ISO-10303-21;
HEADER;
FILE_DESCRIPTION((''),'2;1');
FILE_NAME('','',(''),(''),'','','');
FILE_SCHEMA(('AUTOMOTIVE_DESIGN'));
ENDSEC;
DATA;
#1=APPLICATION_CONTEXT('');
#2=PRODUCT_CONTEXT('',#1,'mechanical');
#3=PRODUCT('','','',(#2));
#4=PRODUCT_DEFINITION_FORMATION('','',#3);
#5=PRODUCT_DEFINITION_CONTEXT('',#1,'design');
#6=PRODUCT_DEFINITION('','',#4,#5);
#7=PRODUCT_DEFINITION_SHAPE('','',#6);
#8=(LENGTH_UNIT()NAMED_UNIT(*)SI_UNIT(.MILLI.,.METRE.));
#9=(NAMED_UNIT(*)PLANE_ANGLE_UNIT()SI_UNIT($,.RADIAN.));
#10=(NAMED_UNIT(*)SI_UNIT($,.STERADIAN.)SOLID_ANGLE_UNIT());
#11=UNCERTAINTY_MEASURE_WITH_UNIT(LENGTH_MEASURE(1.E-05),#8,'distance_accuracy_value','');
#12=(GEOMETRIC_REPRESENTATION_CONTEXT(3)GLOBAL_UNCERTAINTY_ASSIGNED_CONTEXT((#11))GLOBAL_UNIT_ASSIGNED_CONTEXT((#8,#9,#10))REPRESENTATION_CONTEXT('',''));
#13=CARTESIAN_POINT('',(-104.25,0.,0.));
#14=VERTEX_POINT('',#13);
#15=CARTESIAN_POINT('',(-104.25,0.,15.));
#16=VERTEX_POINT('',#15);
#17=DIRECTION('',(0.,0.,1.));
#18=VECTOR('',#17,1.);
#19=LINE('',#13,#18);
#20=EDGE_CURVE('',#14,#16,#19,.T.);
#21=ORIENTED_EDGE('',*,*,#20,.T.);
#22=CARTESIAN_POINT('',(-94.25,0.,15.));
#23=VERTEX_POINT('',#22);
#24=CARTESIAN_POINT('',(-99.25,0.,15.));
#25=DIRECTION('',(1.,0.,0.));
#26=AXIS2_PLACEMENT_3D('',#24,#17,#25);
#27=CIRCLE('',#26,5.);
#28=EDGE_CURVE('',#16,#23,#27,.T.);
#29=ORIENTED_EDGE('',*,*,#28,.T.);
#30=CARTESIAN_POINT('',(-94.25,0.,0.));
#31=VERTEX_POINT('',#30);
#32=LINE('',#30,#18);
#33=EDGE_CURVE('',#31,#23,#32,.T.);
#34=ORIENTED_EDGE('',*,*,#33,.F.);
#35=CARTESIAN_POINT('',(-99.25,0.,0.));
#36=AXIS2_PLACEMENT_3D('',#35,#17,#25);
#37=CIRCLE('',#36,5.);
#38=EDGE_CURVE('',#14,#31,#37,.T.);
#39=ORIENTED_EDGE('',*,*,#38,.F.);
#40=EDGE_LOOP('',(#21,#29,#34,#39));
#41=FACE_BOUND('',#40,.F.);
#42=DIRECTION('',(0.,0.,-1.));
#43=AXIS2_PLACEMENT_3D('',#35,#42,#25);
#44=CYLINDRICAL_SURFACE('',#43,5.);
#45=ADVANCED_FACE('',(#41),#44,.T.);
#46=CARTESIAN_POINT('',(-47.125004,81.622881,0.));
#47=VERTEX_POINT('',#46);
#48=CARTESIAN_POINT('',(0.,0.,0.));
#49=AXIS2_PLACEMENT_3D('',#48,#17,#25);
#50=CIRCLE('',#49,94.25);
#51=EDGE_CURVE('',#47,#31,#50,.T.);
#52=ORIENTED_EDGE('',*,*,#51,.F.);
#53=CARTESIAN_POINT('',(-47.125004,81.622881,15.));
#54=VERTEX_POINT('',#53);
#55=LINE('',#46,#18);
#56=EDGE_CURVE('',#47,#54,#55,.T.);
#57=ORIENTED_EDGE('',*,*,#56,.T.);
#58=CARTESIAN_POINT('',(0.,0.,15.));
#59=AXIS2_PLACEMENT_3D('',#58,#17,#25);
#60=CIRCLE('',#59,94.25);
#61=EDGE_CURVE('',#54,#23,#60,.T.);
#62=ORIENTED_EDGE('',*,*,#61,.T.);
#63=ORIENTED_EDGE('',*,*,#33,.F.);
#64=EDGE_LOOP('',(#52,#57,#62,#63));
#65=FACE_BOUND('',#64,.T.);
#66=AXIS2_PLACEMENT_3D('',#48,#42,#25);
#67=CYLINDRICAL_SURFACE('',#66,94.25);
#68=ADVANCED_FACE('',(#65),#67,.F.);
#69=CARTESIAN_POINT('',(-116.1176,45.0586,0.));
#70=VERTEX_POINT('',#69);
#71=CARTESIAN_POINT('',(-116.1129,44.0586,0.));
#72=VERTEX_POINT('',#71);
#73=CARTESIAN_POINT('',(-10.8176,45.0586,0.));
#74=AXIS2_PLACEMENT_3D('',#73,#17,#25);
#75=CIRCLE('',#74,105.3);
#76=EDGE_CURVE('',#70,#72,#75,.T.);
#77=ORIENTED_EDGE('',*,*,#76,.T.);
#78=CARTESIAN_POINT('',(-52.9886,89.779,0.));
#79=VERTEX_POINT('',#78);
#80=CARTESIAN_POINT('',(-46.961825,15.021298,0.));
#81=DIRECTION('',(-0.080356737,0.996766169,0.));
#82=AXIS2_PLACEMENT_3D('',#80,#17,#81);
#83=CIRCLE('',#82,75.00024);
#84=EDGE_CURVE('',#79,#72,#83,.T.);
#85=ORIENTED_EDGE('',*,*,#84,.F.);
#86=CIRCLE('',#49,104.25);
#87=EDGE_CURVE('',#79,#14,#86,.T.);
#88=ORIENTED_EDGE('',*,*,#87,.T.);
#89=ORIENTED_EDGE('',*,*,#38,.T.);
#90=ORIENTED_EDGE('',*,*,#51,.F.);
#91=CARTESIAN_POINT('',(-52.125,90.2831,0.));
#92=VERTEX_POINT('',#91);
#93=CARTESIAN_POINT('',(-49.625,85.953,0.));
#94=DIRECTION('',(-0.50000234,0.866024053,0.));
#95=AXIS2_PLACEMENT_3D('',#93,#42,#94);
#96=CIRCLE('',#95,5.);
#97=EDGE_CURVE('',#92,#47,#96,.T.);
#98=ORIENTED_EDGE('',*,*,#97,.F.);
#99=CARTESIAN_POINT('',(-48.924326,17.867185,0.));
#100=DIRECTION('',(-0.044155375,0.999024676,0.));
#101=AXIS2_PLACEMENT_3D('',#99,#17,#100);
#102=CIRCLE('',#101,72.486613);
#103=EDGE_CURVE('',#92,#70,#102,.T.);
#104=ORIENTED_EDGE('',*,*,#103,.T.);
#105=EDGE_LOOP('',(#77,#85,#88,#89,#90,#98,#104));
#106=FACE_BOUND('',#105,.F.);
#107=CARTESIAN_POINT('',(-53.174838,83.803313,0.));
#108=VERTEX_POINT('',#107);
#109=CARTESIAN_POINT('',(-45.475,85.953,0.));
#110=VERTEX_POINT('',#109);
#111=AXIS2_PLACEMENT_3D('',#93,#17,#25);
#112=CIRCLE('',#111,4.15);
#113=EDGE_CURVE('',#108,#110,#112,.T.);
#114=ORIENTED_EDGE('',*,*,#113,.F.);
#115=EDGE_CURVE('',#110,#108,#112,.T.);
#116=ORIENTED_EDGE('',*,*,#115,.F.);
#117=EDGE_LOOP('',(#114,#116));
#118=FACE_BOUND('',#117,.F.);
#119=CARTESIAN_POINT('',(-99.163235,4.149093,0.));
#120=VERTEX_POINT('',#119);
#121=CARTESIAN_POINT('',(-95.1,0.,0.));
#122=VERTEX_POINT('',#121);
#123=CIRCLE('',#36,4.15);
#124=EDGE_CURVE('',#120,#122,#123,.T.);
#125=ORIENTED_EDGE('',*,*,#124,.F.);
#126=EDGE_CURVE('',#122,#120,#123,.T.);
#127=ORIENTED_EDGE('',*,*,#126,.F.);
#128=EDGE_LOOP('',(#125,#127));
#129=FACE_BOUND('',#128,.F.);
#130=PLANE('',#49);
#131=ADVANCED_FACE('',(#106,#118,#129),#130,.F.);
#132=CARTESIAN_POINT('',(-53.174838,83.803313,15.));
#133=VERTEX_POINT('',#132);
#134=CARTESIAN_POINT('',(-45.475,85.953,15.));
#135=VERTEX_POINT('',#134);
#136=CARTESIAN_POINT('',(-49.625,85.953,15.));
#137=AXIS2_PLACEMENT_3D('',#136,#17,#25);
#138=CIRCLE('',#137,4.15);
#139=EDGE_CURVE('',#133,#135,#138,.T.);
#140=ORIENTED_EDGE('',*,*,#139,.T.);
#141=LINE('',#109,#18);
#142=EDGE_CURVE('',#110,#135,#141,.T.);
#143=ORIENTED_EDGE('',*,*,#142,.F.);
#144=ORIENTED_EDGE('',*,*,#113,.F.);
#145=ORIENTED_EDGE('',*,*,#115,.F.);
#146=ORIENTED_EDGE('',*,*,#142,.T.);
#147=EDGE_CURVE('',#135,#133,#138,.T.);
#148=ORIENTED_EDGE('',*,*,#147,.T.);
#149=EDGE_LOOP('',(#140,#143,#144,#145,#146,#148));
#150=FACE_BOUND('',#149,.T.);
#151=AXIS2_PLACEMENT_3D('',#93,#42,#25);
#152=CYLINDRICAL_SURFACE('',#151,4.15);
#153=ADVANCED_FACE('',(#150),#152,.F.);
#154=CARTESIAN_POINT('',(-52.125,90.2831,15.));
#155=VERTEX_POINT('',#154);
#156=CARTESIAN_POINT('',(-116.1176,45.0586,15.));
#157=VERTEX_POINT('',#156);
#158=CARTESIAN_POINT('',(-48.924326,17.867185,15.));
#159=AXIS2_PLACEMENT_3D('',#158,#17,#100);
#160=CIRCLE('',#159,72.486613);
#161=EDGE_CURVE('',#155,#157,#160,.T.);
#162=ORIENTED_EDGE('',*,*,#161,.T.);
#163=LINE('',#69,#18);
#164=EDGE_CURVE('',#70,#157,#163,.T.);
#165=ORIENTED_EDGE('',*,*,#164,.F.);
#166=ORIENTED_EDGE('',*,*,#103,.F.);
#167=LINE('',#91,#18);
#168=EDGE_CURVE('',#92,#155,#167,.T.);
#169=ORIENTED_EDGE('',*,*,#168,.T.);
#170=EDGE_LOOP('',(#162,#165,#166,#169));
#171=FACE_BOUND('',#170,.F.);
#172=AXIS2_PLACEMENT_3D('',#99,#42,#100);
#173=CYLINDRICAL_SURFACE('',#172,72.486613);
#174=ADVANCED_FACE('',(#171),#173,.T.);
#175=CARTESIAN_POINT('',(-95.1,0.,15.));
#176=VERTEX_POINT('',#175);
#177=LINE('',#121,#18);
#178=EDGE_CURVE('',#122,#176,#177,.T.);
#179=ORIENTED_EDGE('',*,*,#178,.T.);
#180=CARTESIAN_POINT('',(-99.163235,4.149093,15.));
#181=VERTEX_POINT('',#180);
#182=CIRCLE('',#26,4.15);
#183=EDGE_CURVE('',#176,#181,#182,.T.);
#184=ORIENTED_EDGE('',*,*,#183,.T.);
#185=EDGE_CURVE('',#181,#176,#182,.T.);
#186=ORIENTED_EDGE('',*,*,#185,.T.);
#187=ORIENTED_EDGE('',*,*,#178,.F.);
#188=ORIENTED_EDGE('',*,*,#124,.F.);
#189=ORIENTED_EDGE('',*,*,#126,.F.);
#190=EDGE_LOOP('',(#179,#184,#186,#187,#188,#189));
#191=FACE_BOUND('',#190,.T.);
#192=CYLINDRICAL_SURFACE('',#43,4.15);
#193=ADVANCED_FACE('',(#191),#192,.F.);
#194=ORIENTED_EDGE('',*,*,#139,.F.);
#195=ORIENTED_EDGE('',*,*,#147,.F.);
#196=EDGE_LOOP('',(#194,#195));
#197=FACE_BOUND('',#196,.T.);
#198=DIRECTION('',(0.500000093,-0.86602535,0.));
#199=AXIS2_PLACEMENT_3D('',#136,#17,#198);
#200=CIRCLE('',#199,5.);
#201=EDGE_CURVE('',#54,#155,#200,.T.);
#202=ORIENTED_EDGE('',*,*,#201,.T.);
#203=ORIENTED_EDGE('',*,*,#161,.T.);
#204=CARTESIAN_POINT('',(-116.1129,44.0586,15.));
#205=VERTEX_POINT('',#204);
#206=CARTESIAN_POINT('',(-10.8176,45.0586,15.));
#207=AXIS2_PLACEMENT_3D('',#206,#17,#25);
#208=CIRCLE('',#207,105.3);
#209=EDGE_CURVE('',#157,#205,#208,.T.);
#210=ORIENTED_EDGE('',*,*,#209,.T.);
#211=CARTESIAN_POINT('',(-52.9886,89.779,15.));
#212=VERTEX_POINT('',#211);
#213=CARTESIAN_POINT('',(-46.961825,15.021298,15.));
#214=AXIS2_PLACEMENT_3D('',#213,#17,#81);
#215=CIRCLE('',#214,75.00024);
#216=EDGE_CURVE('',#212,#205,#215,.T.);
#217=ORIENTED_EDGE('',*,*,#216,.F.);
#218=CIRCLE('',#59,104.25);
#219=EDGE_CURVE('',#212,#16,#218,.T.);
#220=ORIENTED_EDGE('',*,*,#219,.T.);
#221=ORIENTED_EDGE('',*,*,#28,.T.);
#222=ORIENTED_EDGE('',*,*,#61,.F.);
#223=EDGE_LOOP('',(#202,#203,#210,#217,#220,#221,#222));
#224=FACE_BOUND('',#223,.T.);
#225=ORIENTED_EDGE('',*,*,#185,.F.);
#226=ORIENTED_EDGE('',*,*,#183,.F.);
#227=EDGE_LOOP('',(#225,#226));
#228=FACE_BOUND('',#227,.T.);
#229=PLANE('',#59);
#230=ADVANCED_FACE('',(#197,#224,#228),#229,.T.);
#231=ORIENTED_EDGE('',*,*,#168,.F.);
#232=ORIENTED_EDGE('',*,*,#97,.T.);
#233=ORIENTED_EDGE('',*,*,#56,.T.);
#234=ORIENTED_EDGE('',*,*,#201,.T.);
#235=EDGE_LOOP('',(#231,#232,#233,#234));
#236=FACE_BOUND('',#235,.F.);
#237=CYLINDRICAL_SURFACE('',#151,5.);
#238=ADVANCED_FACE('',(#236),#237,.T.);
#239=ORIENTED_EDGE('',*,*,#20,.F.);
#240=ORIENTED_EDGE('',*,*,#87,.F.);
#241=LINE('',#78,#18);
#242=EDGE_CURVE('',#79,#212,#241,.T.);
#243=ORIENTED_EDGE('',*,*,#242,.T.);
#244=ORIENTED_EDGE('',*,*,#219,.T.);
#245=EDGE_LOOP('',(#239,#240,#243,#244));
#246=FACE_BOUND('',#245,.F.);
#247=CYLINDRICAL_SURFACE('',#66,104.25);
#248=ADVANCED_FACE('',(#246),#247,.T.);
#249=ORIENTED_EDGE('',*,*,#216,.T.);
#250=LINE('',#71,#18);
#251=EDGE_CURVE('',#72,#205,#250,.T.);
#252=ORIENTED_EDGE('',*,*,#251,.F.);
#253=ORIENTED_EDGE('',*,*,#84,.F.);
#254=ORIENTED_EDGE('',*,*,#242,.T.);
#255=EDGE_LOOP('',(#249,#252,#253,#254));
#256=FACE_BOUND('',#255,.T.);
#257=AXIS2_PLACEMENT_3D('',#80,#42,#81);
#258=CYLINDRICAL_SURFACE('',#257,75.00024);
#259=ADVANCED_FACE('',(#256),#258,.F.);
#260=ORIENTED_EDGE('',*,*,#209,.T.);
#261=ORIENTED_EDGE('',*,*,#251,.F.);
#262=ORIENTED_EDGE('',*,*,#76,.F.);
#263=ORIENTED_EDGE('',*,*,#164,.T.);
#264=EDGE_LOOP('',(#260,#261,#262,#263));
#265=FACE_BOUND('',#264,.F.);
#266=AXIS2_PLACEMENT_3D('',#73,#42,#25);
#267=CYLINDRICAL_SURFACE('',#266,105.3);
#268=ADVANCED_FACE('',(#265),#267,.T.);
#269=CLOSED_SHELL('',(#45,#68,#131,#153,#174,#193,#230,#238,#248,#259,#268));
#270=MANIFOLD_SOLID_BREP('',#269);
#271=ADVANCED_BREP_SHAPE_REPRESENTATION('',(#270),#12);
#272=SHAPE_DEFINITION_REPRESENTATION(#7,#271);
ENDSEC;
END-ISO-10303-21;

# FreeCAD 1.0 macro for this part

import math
import FreeCAD as App
import Part
import Sketcher

V = App.Vector
Q = App.Units.Quantity

doc = App.newDocument("Part")
body = doc.addObject("PartDesign::Body", "Body")

# Sketch on XY plane
sketch1 = body.newObject("Sketcher::SketchObject", "Sketch")
sketch1.AttachmentSupport = (doc.getObject("XY_Plane"), [""])
sketch1.MapMode = "FlatFace"
sketch1.addGeometry(Part.ArcOfCircle(Part.Circle(V(-99.2, 0, 0), V(0, 0, 1), 5), math.radians(180), math.radians(360)), False)
sketch1.addGeometry(Part.ArcOfCircle(Part.Circle(V(0, 0, 0), V(0, 0, 1), 94.2), math.radians(120), math.radians(180)), False)
sketch1.addGeometry(Part.ArcOfCircle(Part.Circle(V(-49.6, 86, 0), V(0, 0, 1), 5), math.radians(-60), math.radians(120)), False)
sketch1.addGeometry(Part.ArcOfCircle(Part.Circle(V(-48.9, 17.9, 0), V(0, 0, 1), 72.5), math.radians(93), math.radians(158)), False)
sketch1.addGeometry(Part.ArcOfCircle(Part.Circle(V(-10.8, 45.1, 0), V(0, 0, 1), 105.3), math.radians(180), math.radians(180.54)), False)
sketch1.addGeometry(Part.ArcOfCircle(Part.Circle(V(-47, 15, 0), V(0, 0, 1), 75), math.radians(95), math.radians(157)), False)
sketch1.addGeometry(Part.ArcOfCircle(Part.Circle(V(0, 0, 0), V(0, 0, 1), 104.2), math.radians(121), math.radians(180)), False)
sketch1.addGeometry(Part.Circle(V(-99.2, 0, 0), V(0, 0, 1), 4.2), False)
sketch1.addGeometry(Part.Circle(V(-49.6, 86, 0), V(0, 0, 1), 4.2), False)
sketch1.addConstraint(Sketcher.Constraint("Tangent", 0, 2, 1, 2))
sketch1.addConstraint(Sketcher.Constraint("Tangent", 1, 1, 2, 1))
sketch1.addConstraint(Sketcher.Constraint("Coincident", 2, 2, 3, 1))
sketch1.addConstraint(Sketcher.Constraint("Coincident", 3, 2, 4, 1))
sketch1.addConstraint(Sketcher.Constraint("Coincident", 4, 2, 5, 2))
sketch1.addConstraint(Sketcher.Constraint("Coincident", 5, 1, 6, 1))
sketch1.addConstraint(Sketcher.Constraint("Tangent", 6, 2, 0, 1))
sketch1.addConstraint(Sketcher.Constraint("Coincident", 1, 3, -1, 1))
sketch1.addConstraint(Sketcher.Constraint("Coincident", 6, 3, -1, 1))
sketch1.addConstraint(Sketcher.Constraint("Coincident", 7, 3, 0, 3))
sketch1.addConstraint(Sketcher.Constraint("Coincident", 8, 3, 2, 3))
sketch1.addConstraint(Sketcher.Constraint("Equal", 0, 2))
sketch1.addConstraint(Sketcher.Constraint("Equal", 7, 8))
sketch1.addConstraint(Sketcher.Constraint("PointOnObject", 0, 3, -1))
sketch1.addConstraint(Sketcher.Constraint("Horizontal", 4, 3, 3, 2))
sketch1.addConstraint(Sketcher.Constraint("Radius", 0, Q("5 mm")))
sketch1.addConstraint(Sketcher.Constraint("Radius", 5, Q("75 mm")))
sketch1.addConstraint(Sketcher.Constraint("Diameter", 7, Q("8.3 mm")))
sketch1.addConstraint(Sketcher.Constraint("Radius", 4, Q("105.3 mm")))
sketch1.addConstraint(Sketcher.Constraint("DistanceY", 4, 2, 3, 2, Q("1 mm")))
sketch1.addConstraint(Sketcher.Constraint("Radius", 1, Q("94.25 mm")))
sketch1.addConstraint(Sketcher.Constraint("DistanceX", 2, 2, 1, 1, Q("5 mm")))
sketch1.addConstraint(Sketcher.Constraint("Radius", 3, Q("72.4864 mm")))
sketch1.addConstraint(Sketcher.Constraint("DistanceX", 2, 2, 2, 3, Q("2.5 mm")))
sketch1.addConstraint(Sketcher.Constraint("DistanceX", 5, 3, -1, 1, Q("46.962 mm")))
sketch1.addConstraint(Sketcher.Constraint("DistanceY", -1, 1, 5, 1, Q("89.779 mm")))
sketch1.addConstraint(Sketcher.Constraint("DistanceY", 5, 3, 4, 3, Q("30.037 mm")))
pad1 = body.newObject("PartDesign::Pad", "Pad")
pad1.Profile = sketch1
pad1.Length = 15

doc.recompute()
